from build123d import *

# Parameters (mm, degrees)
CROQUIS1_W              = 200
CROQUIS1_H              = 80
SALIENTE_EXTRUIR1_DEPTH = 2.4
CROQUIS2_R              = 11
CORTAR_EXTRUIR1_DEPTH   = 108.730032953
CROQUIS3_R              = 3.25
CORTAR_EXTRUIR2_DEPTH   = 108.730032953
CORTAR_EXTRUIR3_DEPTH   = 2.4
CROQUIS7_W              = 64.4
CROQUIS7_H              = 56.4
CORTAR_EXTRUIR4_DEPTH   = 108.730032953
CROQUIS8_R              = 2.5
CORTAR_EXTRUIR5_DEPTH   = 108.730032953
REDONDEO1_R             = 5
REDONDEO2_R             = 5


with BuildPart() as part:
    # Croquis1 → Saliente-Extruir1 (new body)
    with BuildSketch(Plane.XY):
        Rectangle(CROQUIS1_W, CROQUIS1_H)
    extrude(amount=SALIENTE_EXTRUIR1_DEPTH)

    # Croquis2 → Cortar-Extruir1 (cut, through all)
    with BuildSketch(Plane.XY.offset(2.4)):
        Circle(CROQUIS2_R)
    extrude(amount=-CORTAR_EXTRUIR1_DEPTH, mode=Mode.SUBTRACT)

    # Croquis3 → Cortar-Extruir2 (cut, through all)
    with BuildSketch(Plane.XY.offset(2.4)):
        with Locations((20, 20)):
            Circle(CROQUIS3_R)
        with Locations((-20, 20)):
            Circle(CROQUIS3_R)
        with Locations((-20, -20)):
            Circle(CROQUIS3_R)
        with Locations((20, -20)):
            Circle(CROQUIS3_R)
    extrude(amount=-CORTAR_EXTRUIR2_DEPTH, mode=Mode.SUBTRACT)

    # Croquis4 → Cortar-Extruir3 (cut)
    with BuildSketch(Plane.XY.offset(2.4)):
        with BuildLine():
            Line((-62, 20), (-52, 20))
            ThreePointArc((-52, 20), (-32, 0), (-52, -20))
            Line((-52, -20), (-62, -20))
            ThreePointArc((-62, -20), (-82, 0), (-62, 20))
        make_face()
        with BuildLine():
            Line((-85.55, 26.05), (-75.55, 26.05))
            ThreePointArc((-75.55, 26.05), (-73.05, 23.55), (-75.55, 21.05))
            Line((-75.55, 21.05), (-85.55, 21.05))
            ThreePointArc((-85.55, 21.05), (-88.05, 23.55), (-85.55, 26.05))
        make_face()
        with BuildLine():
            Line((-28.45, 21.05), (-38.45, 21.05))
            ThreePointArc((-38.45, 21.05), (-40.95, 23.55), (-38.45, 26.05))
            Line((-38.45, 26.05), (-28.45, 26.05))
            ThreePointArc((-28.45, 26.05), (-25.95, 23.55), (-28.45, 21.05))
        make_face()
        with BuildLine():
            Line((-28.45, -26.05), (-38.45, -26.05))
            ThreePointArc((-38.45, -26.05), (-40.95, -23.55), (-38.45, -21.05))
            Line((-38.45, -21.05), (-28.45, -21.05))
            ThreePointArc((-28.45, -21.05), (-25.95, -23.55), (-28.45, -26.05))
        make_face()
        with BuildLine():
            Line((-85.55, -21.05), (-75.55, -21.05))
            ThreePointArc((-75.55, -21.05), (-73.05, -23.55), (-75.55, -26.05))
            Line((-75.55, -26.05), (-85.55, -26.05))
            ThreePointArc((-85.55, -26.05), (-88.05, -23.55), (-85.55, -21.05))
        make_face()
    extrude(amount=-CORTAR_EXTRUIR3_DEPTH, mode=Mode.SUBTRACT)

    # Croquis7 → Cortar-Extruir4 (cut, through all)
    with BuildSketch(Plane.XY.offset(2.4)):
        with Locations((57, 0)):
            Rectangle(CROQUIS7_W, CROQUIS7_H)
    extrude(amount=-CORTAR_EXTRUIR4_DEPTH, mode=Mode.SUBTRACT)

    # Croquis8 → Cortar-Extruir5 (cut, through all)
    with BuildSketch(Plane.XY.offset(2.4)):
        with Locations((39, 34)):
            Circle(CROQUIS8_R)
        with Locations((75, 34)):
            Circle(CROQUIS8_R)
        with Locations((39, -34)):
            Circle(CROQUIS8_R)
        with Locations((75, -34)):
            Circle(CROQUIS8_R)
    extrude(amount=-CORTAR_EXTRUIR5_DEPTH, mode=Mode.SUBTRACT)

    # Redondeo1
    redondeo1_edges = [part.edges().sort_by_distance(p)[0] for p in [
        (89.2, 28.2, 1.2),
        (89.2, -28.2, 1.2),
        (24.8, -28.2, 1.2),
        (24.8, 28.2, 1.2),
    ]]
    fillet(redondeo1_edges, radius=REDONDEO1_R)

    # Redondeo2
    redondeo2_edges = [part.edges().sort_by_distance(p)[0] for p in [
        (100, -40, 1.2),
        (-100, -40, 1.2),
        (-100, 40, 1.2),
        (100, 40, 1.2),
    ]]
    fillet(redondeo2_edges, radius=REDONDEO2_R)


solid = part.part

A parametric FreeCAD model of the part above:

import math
import FreeCAD as App
import Part
import Sketcher
Q = App.Units.Quantity


def edges_at(feature, points):
    """Names of the edges that pass closest to the given points."""
    edges = feature.Shape.Edges
    near = lambda p: min(range(len(edges)), key=lambda i: edges[i].distToShape(Part.Vertex(*p))[0])
    return sorted({f"Edge{near(p) + 1}" for p in points})


def add_polygon(sketch, points):
    """Adds a closed chain of lines whose ends are joined by coincident constraints."""
    first, n = sketch.GeometryCount, len(points)
    for a, b in zip(points, points[1:] + points[:1]):
        sketch.addGeometry(Part.LineSegment(App.Vector(*a, 0), App.Vector(*b, 0)), False)
    for i in range(n):
        sketch.addConstraint(Sketcher.Constraint("Coincident", first + i, 2, first + (i + 1) % n, 1))

doc = App.newDocument("Part")
body = doc.addObject("PartDesign::Body", "Body")

sketch1 = body.newObject("Sketcher::SketchObject", "Sketch")
sketch1.AttachmentSupport = (doc.getObject("XY_Plane"), [""])
sketch1.MapMode = "FlatFace"
add_polygon(sketch1, [(-100, 40), (-100, -40), (100, -40), (100, 40)])
sketch1.addConstraint([
    Sketcher.Constraint("Vertical", 0),
    Sketcher.Constraint("Horizontal", 1),
    Sketcher.Constraint("Vertical", 2),
    Sketcher.Constraint("Horizontal", 3),
    Sketcher.Constraint("Symmetric", 0, 2, 2, 2, -1, 1),
    Sketcher.Constraint("DistanceX", 1, 1, 1, 2, Q("200 mm")),
    Sketcher.Constraint("DistanceY", 0, 2, 0, 1, Q("80 mm")),
])
pad1 = body.newObject("PartDesign::Pad", "Pad")
pad1.Profile = sketch1
pad1.Length = 2.4

sketch2 = body.newObject("Sketcher::SketchObject", "Sketch001")
sketch2.AttachmentSupport = (doc.getObject("XY_Plane"), [""])
sketch2.MapMode = "FlatFace"
sketch2.AttachmentOffset = App.Placement(App.Vector(0, 0, 2.4), App.Rotation())
sketch2.addGeometry(Part.Circle(App.Vector(0, 0, 0), App.Vector(0, 0, 1), 11), False)
sketch2.addConstraint([
    Sketcher.Constraint("Coincident", 0, 3, -1, 1),
    Sketcher.Constraint("Diameter", 0, Q("22 mm")),
])
pocket1 = body.newObject("PartDesign::Pocket", "Pocket")
pocket1.Profile = sketch2
pocket1.Type = "ThroughAll"

sketch3 = body.newObject("Sketcher::SketchObject", "Sketch002")
sketch3.AttachmentSupport = (doc.getObject("XY_Plane"), [""])
sketch3.MapMode = "FlatFace"
sketch3.AttachmentOffset = App.Placement(App.Vector(0, 0, 2.4), App.Rotation())
sketch3.addGeometry([
    Part.Circle(App.Vector(20, 20, 0), App.Vector(0, 0, 1), 3.2),
    Part.Circle(App.Vector(-20, 20, 0), App.Vector(0, 0, 1), 3.2),
    Part.Circle(App.Vector(-20, -20, 0), App.Vector(0, 0, 1), 3.2),
    Part.Circle(App.Vector(20, -20, 0), App.Vector(0, 0, 1), 3.2),
], False)
sketch3.addConstraint([
    Sketcher.Constraint("Equal", 0, 1),
    Sketcher.Constraint("Equal", 1, 2),
    Sketcher.Constraint("Equal", 2, 3),
    Sketcher.Constraint("Symmetric", 0, 3, 2, 3, -1, 1),
    Sketcher.Constraint("Symmetric", 1, 3, 3, 3, -1, 1),
    Sketcher.Constraint("Symmetric", 0, 3, 1, 3, -2),
    Sketcher.Constraint("Diameter", 0, Q("6.5 mm")),
    Sketcher.Constraint("DistanceX", -1, 1, 0, 3, Q("20 mm")),
    Sketcher.Constraint("DistanceY", -1, 1, 0, 3, Q("20 mm")),
])
pocket2 = body.newObject("PartDesign::Pocket", "Pocket001")
pocket2.Profile = sketch3
pocket2.Type = "ThroughAll"

sketch4 = body.newObject("Sketcher::SketchObject", "Sketch003")
sketch4.AttachmentSupport = (doc.getObject("XY_Plane"), [""])
sketch4.MapMode = "FlatFace"
sketch4.AttachmentOffset = App.Placement(App.Vector(0, 0, 2.4), App.Rotation())
sketch4.addGeometry([
    Part.LineSegment(App.Vector(-52, 20, 0), App.Vector(-62, 20, 0)),
    Part.ArcOfCircle(Part.Circle(App.Vector(-62, 0, 0), App.Vector(0, 0, 1), 20), math.radians(90), math.radians(270)),
    Part.LineSegment(App.Vector(-62, -20, 0), App.Vector(-52, -20, 0)),
    Part.ArcOfCircle(Part.Circle(App.Vector(-52, 0, 0), App.Vector(0, 0, 1), 20), math.radians(-90), math.radians(90)),
    Part.LineSegment(App.Vector(-75.5, 26.1, 0), App.Vector(-85.5, 26.1, 0)),
    Part.ArcOfCircle(Part.Circle(App.Vector(-85.5, 23.6, 0), App.Vector(0, 0, 1), 2.5), math.radians(90), math.radians(270)),
    Part.LineSegment(App.Vector(-85.5, 21.1, 0), App.Vector(-75.5, 21.1, 0)),
    Part.ArcOfCircle(Part.Circle(App.Vector(-75.5, 23.6, 0), App.Vector(0, 0, 1), 2.5), math.radians(-90), math.radians(90)),
    Part.LineSegment(App.Vector(-38.5, 21.1, 0), App.Vector(-28.4, 21.1, 0)),
    Part.ArcOfCircle(Part.Circle(App.Vector(-28.4, 23.6, 0), App.Vector(0, 0, 1), 2.5), math.radians(-90), math.radians(90)),
    Part.LineSegment(App.Vector(-28.4, 26.1, 0), App.Vector(-38.5, 26.1, 0)),
    Part.ArcOfCircle(Part.Circle(App.Vector(-38.5, 23.6, 0), App.Vector(0, 0, 1), 2.5), math.radians(90), math.radians(270)),
    Part.LineSegment(App.Vector(-38.5, -26.1, 0), App.Vector(-28.4, -26.1, 0)),
    Part.ArcOfCircle(Part.Circle(App.Vector(-28.4, -23.6, 0), App.Vector(0, 0, 1), 2.5), math.radians(-90), math.radians(90)),
    Part.LineSegment(App.Vector(-28.4, -21.1, 0), App.Vector(-38.5, -21.1, 0)),
    Part.ArcOfCircle(Part.Circle(App.Vector(-38.5, -23.6, 0), App.Vector(0, 0, 1), 2.5), math.radians(90), math.radians(270)),
    Part.LineSegment(App.Vector(-75.5, -21.1, 0), App.Vector(-85.5, -21.1, 0)),
    Part.ArcOfCircle(Part.Circle(App.Vector(-85.5, -23.6, 0), App.Vector(0, 0, 1), 2.5), math.radians(90), math.radians(270)),
    Part.LineSegment(App.Vector(-85.5, -26.1, 0), App.Vector(-75.5, -26.1, 0)),
    Part.ArcOfCircle(Part.Circle(App.Vector(-75.5, -23.6, 0), App.Vector(0, 0, 1), 2.5), math.radians(-90), math.radians(90)),
], False)
sketch4.addConstraint([
    Sketcher.Constraint("Tangent", 0, 2, 1, 1),
    Sketcher.Constraint("Tangent", 1, 2, 2, 1),
    Sketcher.Constraint("Tangent", 2, 2, 3, 1),
    Sketcher.Constraint("Tangent", 3, 2, 0, 1),
    Sketcher.Constraint("Tangent", 4, 2, 5, 1),
    Sketcher.Constraint("Tangent", 5, 2, 6, 1),
    Sketcher.Constraint("Tangent", 6, 2, 7, 1),
    Sketcher.Constraint("Tangent", 7, 2, 4, 1),
    Sketcher.Constraint("Tangent", 8, 2, 9, 1),
    Sketcher.Constraint("Tangent", 9, 2, 10, 1),
    Sketcher.Constraint("Tangent", 10, 2, 11, 1),
    Sketcher.Constraint("Tangent", 11, 2, 8, 1),
    Sketcher.Constraint("Tangent", 12, 2, 13, 1),
    Sketcher.Constraint("Tangent", 13, 2, 14, 1),
    Sketcher.Constraint("Tangent", 14, 2, 15, 1),
    Sketcher.Constraint("Tangent", 15, 2, 12, 1),
    Sketcher.Constraint("Tangent", 16, 2, 17, 1),
    Sketcher.Constraint("Tangent", 17, 2, 18, 1),
    Sketcher.Constraint("Tangent", 18, 2, 19, 1),
    Sketcher.Constraint("Tangent", 19, 2, 16, 1),
    Sketcher.Constraint("Horizontal", 0),
    Sketcher.Constraint("Horizontal", 2),
    Sketcher.Constraint("Horizontal", 4),
    Sketcher.Constraint("Horizontal", 6),
    Sketcher.Constraint("Horizontal", 8),
    Sketcher.Constraint("Horizontal", 10),
    Sketcher.Constraint("Horizontal", 12),
    Sketcher.Constraint("Horizontal", 14),
    Sketcher.Constraint("Horizontal", 16),
    Sketcher.Constraint("Horizontal", 18),
    Sketcher.Constraint("Equal", 7, 9),
    Sketcher.Constraint("Equal", 11, 13),
    Sketcher.Constraint("Equal", 15, 17),
    Sketcher.Constraint("Symmetric", 9, 3, 13, 3, -1),
    Sketcher.Constraint("Symmetric", 5, 3, 17, 3, -1),
    Sketcher.Constraint("PointOnObject", 1, 3, -1),
    Sketcher.Constraint("Horizontal", 7, 3, 9, 3),
    Sketcher.Constraint("Vertical", 11, 3, 15, 3),
    Sketcher.Constraint("Vertical", 7, 3, 19, 3),
    Sketcher.Constraint("Equal", 2, 4),
    Sketcher.Constraint("Equal", 6, 8),
    Sketcher.Constraint("Radius", 1, Q("20 mm")),
    Sketcher.Constraint("Radius", 5, Q("2.5 mm")),
    Sketcher.Constraint("DistanceX", 0, 2, 0, 1, Q("10 mm")),
    Sketcher.Constraint("DistanceX", 1, 3, -1, 1, Q("62 mm")),
    Sketcher.Constraint("DistanceX", 7, 3, 9, 3, Q("47.1 mm")),
    Sketcher.Constraint("DistanceY", 13, 3, 9, 3, Q("47.1 mm")),
    Sketcher.Constraint("DistanceX", 5, 3, -1, 1, Q("85.55 mm")),
])
pocket3 = body.newObject("PartDesign::Pocket", "Pocket002")
pocket3.Profile = sketch4
pocket3.Length = 2.4

sketch5 = body.newObject("Sketcher::SketchObject", "Sketch004")
sketch5.AttachmentSupport = (doc.getObject("XY_Plane"), [""])
sketch5.MapMode = "FlatFace"
sketch5.AttachmentOffset = App.Placement(App.Vector(0, 0, 2.4), App.Rotation())
add_polygon(sketch5, [(25, 28), (25, -28), (89, -28), (89, 28)])
sketch5.addConstraint([
    Sketcher.Constraint("Vertical", 0),
    Sketcher.Constraint("Horizontal", 1),
    Sketcher.Constraint("Vertical", 2),
    Sketcher.Constraint("Horizontal", 3),
    Sketcher.Constraint("DistanceX", 1, 1, 1, 2, Q("64.4 mm")),
    Sketcher.Constraint("DistanceY", 0, 2, 0, 1, Q("56.4 mm")),
    Sketcher.Constraint("DistanceX", -1, 1, 0, 2, Q("24.8 mm")),
    Sketcher.Constraint("DistanceY", 0, 2, -1, 1, Q("28.2 mm")),
])
pocket4 = body.newObject("PartDesign::Pocket", "Pocket003")
pocket4.Profile = sketch5
pocket4.Type = "ThroughAll"

sketch6 = body.newObject("Sketcher::SketchObject", "Sketch005")
sketch6.AttachmentSupport = (doc.getObject("XY_Plane"), [""])
sketch6.MapMode = "FlatFace"
sketch6.AttachmentOffset = App.Placement(App.Vector(0, 0, 2.4), App.Rotation())
sketch6.addGeometry([
    Part.Circle(App.Vector(39, 34, 0), App.Vector(0, 0, 1), 2.5),
    Part.Circle(App.Vector(75, 34, 0), App.Vector(0, 0, 1), 2.5),
    Part.Circle(App.Vector(39, -34, 0), App.Vector(0, 0, 1), 2.5),
    Part.Circle(App.Vector(75, -34, 0), App.Vector(0, 0, 1), 2.5),
], False)
sketch6.addConstraint([
    Sketcher.Constraint("Equal", 0, 1),
    Sketcher.Constraint("Equal", 1, 2),
    Sketcher.Constraint("Equal", 2, 3),
    Sketcher.Constraint("Symmetric", 0, 3, 2, 3, -1),
    Sketcher.Constraint("Symmetric", 1, 3, 3, 3, -1),
    Sketcher.Constraint("Horizontal", 0, 3, 1, 3),
    Sketcher.Constraint("Diameter", 0, Q("5 mm")),
    Sketcher.Constraint("DistanceX", -1, 1, 0, 3, Q("39 mm")),
    Sketcher.Constraint("DistanceY", -1, 1, 0, 3, Q("34 mm")),
    Sketcher.Constraint("DistanceX", -1, 1, 1, 3, Q("75 mm")),
])
pocket5 = body.newObject("PartDesign::Pocket", "Pocket004")
pocket5.Profile = sketch6
pocket5.Type = "ThroughAll"
doc.recompute()

fillet = body.newObject("PartDesign::Fillet", "Fillet")
fillet.Base = (pocket5, edges_at(pocket5, [
    (89.2, 28.2, 1.2),
    (89.2, -28.2, 1.2),
    (24.8, -28.2, 1.2),
    (24.8, 28.2, 1.2),
]))
fillet.Radius = 5
doc.recompute()

fillet2 = body.newObject("PartDesign::Fillet", "Fillet001")
fillet2.Base = (fillet, edges_at(fillet, [
    (100, -40, 1.2),
    (-100, -40, 1.2),
    (-100, 40, 1.2),
    (100, 40, 1.2),
]))
fillet2.Radius = 5

doc.recompute()
